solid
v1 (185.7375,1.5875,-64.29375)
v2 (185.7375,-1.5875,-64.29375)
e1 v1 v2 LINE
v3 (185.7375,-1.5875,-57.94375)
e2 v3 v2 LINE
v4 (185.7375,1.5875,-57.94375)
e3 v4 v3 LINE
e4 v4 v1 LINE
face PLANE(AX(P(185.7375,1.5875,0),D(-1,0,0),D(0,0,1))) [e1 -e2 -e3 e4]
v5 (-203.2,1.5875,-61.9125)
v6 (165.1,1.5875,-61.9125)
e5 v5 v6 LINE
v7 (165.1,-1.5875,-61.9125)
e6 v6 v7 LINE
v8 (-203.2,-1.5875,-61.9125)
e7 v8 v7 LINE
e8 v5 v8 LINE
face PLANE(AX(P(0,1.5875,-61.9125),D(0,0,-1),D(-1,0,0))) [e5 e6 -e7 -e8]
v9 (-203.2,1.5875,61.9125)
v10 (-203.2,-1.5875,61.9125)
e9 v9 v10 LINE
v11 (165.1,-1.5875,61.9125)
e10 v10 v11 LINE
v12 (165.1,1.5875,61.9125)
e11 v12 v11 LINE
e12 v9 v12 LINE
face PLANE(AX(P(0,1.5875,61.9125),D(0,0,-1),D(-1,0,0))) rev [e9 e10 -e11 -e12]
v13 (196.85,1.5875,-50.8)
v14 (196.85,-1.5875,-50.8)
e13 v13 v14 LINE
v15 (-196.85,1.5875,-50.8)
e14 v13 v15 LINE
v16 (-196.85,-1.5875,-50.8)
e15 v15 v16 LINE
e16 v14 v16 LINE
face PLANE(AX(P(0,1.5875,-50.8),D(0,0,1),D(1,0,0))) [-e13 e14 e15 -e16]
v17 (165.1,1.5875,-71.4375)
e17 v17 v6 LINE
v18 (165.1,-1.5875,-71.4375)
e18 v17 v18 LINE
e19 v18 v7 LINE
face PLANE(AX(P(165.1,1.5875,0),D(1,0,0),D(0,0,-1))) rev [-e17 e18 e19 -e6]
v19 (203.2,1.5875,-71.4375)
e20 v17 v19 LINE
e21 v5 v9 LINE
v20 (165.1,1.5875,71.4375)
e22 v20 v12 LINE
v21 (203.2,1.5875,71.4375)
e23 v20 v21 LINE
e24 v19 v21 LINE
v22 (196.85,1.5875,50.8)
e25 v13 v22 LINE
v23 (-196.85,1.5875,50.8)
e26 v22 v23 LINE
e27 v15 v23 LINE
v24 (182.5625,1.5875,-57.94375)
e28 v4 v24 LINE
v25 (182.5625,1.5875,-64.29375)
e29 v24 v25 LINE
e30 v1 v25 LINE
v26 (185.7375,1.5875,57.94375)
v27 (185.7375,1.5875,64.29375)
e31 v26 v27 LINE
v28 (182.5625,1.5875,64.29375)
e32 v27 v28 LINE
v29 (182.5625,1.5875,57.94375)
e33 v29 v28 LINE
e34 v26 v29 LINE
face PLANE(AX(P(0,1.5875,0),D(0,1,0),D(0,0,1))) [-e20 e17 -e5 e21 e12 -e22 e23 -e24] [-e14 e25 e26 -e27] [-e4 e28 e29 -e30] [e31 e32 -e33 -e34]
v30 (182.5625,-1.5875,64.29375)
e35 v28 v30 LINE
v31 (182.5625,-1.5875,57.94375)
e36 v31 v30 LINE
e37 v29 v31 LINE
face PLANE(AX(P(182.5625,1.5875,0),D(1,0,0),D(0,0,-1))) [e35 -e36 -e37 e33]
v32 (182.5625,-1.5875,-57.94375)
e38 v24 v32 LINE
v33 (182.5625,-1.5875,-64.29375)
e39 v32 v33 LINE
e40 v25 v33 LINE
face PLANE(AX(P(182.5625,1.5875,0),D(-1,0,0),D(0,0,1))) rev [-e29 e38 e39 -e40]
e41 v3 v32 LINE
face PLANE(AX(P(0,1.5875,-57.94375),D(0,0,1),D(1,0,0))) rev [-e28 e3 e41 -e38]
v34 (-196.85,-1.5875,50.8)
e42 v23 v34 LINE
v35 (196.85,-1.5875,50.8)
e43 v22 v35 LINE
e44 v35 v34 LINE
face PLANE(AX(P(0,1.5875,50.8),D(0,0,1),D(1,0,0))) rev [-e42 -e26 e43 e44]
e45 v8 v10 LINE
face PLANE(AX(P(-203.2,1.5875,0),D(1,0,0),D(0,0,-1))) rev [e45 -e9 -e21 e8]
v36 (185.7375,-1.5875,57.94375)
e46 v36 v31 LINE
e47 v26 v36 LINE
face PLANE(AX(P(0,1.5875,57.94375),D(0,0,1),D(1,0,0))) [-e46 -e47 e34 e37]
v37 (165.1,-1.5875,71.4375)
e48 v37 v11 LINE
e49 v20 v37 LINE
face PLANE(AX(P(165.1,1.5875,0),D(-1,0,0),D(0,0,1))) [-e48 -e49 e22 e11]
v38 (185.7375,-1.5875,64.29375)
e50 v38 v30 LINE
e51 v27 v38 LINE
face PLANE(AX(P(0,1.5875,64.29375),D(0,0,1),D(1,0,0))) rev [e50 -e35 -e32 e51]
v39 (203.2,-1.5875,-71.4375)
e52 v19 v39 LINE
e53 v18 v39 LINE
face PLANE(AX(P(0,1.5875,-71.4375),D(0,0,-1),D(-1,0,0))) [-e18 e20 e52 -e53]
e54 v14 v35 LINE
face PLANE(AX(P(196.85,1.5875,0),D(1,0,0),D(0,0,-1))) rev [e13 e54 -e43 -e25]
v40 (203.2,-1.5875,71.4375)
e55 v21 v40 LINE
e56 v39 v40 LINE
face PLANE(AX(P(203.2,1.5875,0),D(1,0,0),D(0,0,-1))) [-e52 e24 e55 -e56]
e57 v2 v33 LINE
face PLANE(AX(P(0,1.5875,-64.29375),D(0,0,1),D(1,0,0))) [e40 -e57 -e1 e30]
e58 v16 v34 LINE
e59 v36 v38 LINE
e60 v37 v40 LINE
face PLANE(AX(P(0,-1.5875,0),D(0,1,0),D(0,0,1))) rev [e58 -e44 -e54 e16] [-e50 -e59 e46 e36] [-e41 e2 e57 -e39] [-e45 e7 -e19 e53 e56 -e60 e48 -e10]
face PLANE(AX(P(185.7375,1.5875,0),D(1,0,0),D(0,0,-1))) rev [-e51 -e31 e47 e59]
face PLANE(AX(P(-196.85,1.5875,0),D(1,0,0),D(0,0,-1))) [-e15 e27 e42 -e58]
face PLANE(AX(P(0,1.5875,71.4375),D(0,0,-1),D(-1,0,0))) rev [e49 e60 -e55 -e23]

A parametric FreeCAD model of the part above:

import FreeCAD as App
import Part
import Sketcher
Q = App.Units.Quantity


def add_polygon(sketch, points):
    """Adds a closed chain of lines whose ends are joined by coincident constraints."""
    first, n = sketch.GeometryCount, len(points)
    for a, b in zip(points, points[1:] + points[:1]):
        sketch.addGeometry(Part.LineSegment(App.Vector(*a, 0), App.Vector(*b, 0)), False)
    for i in range(n):
        sketch.addConstraint(Sketcher.Constraint("Coincident", first + i, 2, first + (i + 1) % n, 1))

doc = App.newDocument("Part")
params = doc.addObject("Spreadsheet::Sheet", "Params")
for row, (alias, value) in enumerate([
    ("sketch1_height", "4 in"),
    ("sketch1_width", "1.5 in"),
    ("sketch1_width2", "14.5 in"),
    ("sketch1_width3", "15.5 in"),
    ("sketch1_height2", "0.25 in"),
    ("pad1_length", "0.125 in"),
], start=1):
    params.set(f"A{row}", alias)
    params.set(f"B{row}", "=" + value)
    params.setAlias(f"B{row}", alias)

body = doc.addObject("PartDesign::Body", "Body")

sketch1 = body.newObject("Sketcher::SketchObject", "Sketch")
sketch1.AttachmentSupport = (doc.getObject("XZ_Plane"), [""])
sketch1.MapMode = "FlatFace"
add_polygon(sketch1, [(203.2, -71.4), (165.1, -71.4), (165.1, -61.9), (-203.2, -61.9), (-203.2, 61.9), (165.1, 61.9), (165.1, 71.4), (203.2, 71.4)])
add_polygon(sketch1, [(185.7, 64.3), (182.6, 64.3), (182.6, 57.9), (185.7, 57.9)])
add_polygon(sketch1, [(196.8, 50.8), (-196.8, 50.8), (-196.8, -50.8), (196.8, -50.8)])
add_polygon(sketch1, [(185.7, -57.9), (182.6, -57.9), (182.6, -64.3), (185.7, -64.3)])
sketch1.addConstraint(Sketcher.Constraint("Horizontal", 0))
sketch1.addConstraint(Sketcher.Constraint("Vertical", 1))
sketch1.addConstraint(Sketcher.Constraint("Horizontal", 2))
sketch1.addConstraint(Sketcher.Constraint("Vertical", 3))
sketch1.addConstraint(Sketcher.Constraint("Horizontal", 4))
sketch1.addConstraint(Sketcher.Constraint("Vertical", 5))
sketch1.addConstraint(Sketcher.Constraint("Horizontal", 6))
sketch1.addConstraint(Sketcher.Constraint("Vertical", 7))
sketch1.addConstraint(Sketcher.Constraint("Horizontal", 8))
sketch1.addConstraint(Sketcher.Constraint("Vertical", 9))
sketch1.addConstraint(Sketcher.Constraint("Horizontal", 10))
sketch1.addConstraint(Sketcher.Constraint("Vertical", 11))
sketch1.addConstraint(Sketcher.Constraint("Horizontal", 12))
sketch1.addConstraint(Sketcher.Constraint("Vertical", 13))
sketch1.addConstraint(Sketcher.Constraint("Horizontal", 14))
sketch1.addConstraint(Sketcher.Constraint("Vertical", 15))
sketch1.addConstraint(Sketcher.Constraint("Horizontal", 16))
sketch1.addConstraint(Sketcher.Constraint("Vertical", 17))
sketch1.addConstraint(Sketcher.Constraint("Horizontal", 18))
sketch1.addConstraint(Sketcher.Constraint("Vertical", 19))
sketch1.addConstraint(Sketcher.Constraint("Symmetric", 12, 2, 14, 2, -1, 1))
sketch1.addConstraint(Sketcher.Constraint("Symmetric", 1, 2, 4, 2, -1))
sketch1.addConstraint(Sketcher.Constraint("Symmetric", 9, 2, 16, 2, -1))
sketch1.addConstraint(Sketcher.Constraint("Symmetric", 11, 2, 18, 2, -1))
sketch1.addConstraint(Sketcher.Constraint("Equal", 1, 5))
sketch1.addConstraint(Sketcher.Constraint("DistanceY", 13, 2, 13, 1, Q("4 in")))
sketch1.addConstraint(Sketcher.Constraint("DistanceX", 0, 2, 0, 1, Q("1.5 in")))
sketch1.addConstraint(Sketcher.Constraint("DistanceX", 2, 2, 2, 1, Q("14.5 in")))
sketch1.addConstraint(Sketcher.Constraint("DistanceX", 12, 2, 12, 1, Q("15.5 in")))
sketch1.addConstraint(Sketcher.Constraint("DistanceX", 2, 2, -1, 1, Q("8 in")))
sketch1.addConstraint(Sketcher.Constraint("DistanceY", 9, 2, 9, 1, Q("0.25 in")))
sketch1.addConstraint(Sketcher.Constraint("DistanceX", 8, 2, 8, 1, Q("0.125 in")))
sketch1.addConstraint(Sketcher.Constraint("DistanceY", 1, 1, 1, 2, Q("0.375 in")))
sketch1.addConstraint(Sketcher.Constraint("DistanceY", 3, 1, 3, 2, Q("4.875 in")))
sketch1.addConstraint(Sketcher.Constraint("DistanceX", -1, 1, 8, 2, Q("7.1875 in")))
sketch1.addConstraint(Sketcher.Constraint("DistanceY", -1, 1, 8, 2, Q("2.53125 in")))
sketch1.setExpression("Constraints[45]", "Params.sketch1_height")
sketch1.setExpression("Constraints[46]", "Params.sketch1_width")
sketch1.setExpression("Constraints[47]", "Params.sketch1_width2")
sketch1.setExpression("Constraints[48]", "Params.sketch1_width3")
sketch1.setExpression("Constraints[50]", "Params.sketch1_height2")
pad1 = body.newObject("PartDesign::Pad", "Pad")
pad1.Profile = sketch1
pad1.setExpression("Length", "Params.pad1_length")
pad1.Midplane = True

doc.recompute()
